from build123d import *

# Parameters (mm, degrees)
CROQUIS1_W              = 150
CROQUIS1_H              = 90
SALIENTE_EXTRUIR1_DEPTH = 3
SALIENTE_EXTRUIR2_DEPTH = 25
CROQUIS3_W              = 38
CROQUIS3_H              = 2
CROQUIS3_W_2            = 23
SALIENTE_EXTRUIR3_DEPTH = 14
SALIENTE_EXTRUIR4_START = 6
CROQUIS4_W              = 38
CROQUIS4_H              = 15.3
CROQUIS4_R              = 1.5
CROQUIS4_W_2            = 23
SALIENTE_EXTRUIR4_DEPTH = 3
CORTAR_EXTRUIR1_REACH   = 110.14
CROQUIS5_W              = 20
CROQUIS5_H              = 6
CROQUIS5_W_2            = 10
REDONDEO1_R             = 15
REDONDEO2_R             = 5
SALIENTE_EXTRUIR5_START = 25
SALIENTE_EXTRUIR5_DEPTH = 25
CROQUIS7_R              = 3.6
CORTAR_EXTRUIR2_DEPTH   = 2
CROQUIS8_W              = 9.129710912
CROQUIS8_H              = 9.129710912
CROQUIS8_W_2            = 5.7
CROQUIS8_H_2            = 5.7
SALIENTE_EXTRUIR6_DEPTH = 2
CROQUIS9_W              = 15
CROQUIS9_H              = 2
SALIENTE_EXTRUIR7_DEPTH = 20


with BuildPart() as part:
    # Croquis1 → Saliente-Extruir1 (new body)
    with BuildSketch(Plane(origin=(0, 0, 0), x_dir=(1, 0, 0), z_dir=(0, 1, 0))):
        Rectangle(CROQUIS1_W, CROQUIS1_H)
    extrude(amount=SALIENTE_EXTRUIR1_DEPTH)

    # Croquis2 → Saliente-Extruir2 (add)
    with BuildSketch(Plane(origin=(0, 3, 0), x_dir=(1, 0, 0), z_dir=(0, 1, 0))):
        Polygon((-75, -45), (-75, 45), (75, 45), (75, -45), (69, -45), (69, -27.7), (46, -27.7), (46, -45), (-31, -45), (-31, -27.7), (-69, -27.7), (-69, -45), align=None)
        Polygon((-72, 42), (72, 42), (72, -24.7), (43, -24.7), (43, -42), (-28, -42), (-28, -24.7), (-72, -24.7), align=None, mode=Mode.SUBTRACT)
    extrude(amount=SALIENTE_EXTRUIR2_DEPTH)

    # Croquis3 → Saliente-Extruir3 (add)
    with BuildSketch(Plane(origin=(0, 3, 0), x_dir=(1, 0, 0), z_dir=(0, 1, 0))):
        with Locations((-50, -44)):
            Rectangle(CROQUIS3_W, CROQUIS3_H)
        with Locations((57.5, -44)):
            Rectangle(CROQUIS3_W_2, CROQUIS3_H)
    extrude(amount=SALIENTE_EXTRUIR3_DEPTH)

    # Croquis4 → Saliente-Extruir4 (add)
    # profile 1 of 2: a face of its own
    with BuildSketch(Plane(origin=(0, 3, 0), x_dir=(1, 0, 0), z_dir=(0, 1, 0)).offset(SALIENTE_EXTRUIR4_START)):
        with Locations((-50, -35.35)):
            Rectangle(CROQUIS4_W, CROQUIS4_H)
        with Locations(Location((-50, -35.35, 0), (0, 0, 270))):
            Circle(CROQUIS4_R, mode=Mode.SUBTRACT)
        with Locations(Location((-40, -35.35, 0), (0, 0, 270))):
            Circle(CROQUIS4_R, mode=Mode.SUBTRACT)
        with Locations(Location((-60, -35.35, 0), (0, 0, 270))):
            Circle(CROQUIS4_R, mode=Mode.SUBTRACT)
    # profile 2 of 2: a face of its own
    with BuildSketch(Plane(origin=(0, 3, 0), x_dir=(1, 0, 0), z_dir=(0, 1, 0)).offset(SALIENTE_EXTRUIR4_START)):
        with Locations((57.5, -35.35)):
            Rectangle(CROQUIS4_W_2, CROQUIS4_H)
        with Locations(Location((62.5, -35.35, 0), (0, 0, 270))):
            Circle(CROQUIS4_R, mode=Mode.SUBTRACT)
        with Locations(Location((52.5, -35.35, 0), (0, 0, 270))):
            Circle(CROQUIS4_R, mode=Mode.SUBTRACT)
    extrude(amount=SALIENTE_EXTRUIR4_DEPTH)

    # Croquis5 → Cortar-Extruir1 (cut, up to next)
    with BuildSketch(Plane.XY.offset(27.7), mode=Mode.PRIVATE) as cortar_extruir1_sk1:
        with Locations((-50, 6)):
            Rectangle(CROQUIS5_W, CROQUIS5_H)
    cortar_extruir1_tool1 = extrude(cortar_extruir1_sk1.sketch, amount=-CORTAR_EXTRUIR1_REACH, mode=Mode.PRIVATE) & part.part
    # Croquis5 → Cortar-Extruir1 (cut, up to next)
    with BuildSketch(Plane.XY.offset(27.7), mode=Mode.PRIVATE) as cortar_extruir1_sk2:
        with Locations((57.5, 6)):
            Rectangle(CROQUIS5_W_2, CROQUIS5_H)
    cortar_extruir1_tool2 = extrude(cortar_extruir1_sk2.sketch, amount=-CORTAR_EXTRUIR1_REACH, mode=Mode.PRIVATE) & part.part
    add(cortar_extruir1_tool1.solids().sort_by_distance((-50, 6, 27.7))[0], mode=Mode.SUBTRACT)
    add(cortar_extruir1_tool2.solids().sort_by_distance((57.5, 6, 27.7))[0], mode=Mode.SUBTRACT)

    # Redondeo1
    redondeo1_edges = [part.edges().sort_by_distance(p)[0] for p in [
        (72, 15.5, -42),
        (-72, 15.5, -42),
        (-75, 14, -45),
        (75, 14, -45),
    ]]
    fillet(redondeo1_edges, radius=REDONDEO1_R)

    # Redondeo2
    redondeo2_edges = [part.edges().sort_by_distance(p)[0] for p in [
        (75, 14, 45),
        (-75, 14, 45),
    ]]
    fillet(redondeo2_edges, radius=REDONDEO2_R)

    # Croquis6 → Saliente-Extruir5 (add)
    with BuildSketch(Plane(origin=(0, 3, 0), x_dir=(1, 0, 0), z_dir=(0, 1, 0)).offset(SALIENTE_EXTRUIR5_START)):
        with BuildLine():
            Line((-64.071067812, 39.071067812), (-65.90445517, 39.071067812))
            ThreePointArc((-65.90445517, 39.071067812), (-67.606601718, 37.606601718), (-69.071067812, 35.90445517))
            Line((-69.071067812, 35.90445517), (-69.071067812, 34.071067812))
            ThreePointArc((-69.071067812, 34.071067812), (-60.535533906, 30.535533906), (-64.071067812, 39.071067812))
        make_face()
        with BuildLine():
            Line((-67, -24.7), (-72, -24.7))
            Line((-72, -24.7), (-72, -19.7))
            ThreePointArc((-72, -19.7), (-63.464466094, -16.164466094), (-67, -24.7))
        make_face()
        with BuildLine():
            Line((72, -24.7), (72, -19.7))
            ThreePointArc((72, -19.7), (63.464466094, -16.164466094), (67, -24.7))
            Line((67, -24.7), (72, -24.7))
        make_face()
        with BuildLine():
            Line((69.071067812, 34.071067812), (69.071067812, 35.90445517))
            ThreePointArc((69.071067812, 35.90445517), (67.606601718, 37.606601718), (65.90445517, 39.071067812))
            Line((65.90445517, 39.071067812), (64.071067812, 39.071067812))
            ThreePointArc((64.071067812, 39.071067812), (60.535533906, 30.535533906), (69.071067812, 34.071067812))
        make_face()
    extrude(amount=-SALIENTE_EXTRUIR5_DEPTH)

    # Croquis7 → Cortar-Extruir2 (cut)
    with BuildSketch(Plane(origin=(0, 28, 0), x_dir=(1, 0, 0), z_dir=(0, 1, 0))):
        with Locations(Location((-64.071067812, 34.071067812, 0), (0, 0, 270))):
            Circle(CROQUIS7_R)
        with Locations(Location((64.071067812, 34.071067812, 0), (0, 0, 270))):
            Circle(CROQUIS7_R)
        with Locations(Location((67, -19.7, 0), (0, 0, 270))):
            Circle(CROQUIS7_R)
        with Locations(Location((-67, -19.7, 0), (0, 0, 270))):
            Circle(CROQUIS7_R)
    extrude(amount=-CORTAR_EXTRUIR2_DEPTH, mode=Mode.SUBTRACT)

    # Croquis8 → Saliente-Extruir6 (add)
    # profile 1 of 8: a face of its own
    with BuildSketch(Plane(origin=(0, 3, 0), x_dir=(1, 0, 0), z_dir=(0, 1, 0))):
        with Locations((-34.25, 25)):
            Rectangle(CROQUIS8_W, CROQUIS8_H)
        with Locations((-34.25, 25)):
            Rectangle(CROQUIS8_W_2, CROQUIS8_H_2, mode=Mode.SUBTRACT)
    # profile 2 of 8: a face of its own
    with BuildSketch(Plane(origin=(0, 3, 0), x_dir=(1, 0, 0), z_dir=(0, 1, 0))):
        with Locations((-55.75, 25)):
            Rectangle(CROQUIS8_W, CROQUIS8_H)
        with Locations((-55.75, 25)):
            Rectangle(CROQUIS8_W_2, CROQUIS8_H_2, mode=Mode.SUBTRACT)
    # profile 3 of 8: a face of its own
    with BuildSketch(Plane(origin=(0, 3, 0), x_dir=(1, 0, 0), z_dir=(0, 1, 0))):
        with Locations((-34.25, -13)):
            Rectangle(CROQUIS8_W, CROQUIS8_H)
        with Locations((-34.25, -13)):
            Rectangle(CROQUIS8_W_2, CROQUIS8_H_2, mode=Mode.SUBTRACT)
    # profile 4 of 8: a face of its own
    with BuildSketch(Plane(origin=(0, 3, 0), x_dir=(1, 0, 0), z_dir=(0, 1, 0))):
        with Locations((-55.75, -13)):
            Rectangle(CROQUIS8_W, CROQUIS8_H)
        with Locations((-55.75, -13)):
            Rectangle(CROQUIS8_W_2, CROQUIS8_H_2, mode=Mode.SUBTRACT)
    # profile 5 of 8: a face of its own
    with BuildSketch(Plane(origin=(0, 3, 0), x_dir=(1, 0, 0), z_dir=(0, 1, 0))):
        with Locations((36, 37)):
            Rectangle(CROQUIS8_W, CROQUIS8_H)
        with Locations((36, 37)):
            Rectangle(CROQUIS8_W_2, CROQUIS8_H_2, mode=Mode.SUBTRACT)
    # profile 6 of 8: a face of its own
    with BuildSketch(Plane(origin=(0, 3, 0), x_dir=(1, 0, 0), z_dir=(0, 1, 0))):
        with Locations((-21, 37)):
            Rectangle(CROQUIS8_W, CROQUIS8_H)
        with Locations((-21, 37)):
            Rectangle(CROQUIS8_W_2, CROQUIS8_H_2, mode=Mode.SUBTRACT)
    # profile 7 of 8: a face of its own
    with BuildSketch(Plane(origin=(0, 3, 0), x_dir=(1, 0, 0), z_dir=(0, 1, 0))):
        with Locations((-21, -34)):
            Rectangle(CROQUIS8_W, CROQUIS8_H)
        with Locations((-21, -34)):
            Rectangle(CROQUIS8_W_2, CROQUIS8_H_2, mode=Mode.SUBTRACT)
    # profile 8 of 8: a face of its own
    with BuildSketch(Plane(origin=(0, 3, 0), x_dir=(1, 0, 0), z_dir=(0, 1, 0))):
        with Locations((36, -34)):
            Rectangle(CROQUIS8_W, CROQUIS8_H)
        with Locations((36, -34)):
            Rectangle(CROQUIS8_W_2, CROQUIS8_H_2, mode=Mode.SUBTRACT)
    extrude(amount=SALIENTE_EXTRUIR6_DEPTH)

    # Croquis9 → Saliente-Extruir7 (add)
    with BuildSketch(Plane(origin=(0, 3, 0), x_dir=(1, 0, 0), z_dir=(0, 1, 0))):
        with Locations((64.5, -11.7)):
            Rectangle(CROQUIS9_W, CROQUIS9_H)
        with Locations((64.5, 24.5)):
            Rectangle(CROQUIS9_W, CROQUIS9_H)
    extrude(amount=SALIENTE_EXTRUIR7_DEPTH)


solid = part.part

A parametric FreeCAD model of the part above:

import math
import FreeCAD as App
import Part
import Sketcher

V = App.Vector


def edges_at(feature, points):
    """Names of the edges that pass closest to the given points."""
    edges = feature.Shape.Edges
    near = lambda p: min(range(len(edges)), key=lambda i: edges[i].distToShape(Part.Vertex(*p))[0])
    return sorted({f"Edge{near(p) + 1}" for p in points})


def add_polygon(sketch, points):
    """Adds a closed chain of lines whose ends are joined by coincident constraints."""
    first, n = sketch.GeometryCount, len(points)
    for a, b in zip(points, points[1:] + points[:1]):
        sketch.addGeometry(Part.LineSegment(App.Vector(*a, 0), App.Vector(*b, 0)), False)
    for i in range(n):
        sketch.addConstraint(Sketcher.Constraint("Coincident", first + i, 2, first + (i + 1) % n, 1))

doc = App.newDocument("Part")
body = doc.addObject("PartDesign::Body", "Body")

sketch1 = doc.addObject("Sketcher::SketchObject", "Sketch")
body.addObject(sketch1)
sketch1.AttachmentSupport = (doc.XZ_Plane, [""])
sketch1.MapMode = "FlatFace"
add_polygon(sketch1, [(-75, -45), (-75, 45), (75, 45), (75, -45)])
sketch1.addConstraint(Sketcher.Constraint("Vertical", 0))
sketch1.addConstraint(Sketcher.Constraint("Horizontal", 1))
sketch1.addConstraint(Sketcher.Constraint("Vertical", 2))
sketch1.addConstraint(Sketcher.Constraint("Horizontal", 3))
sketch1.addConstraint(Sketcher.Constraint("Symmetric", 0, 2, 2, 2, -1, 1))
sketch1.addConstraint(Sketcher.Constraint("DistanceX", 1, 1, 1, 2, 150.0))
sketch1.addConstraint(Sketcher.Constraint("DistanceY", 0, 1, 0, 2, 90.0))
pad1 = doc.addObject("PartDesign::Pad", "Pad")
body.addObject(pad1)
pad1.Profile = sketch1
pad1.Length = 3
pad1.Reversed = True

sketch2 = doc.addObject("Sketcher::SketchObject", "Sketch001")
body.addObject(sketch2)
sketch2.AttachmentSupport = (doc.XZ_Plane, [""])
sketch2.MapMode = "FlatFace"
sketch2.AttachmentOffset = App.Placement(V(0, 0, -3), App.Rotation())
add_polygon(sketch2, [(-75, -45), (-75, 45), (-69, 45), (-69, 27.7), (-31, 27.7), (-31, 45), (46, 45), (46, 27.7), (69, 27.7), (69, 45), (75, 45), (75, -45)])
add_polygon(sketch2, [(-72, -42), (72, -42), (72, 24.7), (43, 24.7), (43, 42), (-28, 42), (-28, 24.7), (-72, 24.7)])
sketch2.addConstraint(Sketcher.Constraint("Vertical", 0))
sketch2.addConstraint(Sketcher.Constraint("Horizontal", 1))
sketch2.addConstraint(Sketcher.Constraint("Vertical", 2))
sketch2.addConstraint(Sketcher.Constraint("Horizontal", 3))
sketch2.addConstraint(Sketcher.Constraint("Vertical", 4))
sketch2.addConstraint(Sketcher.Constraint("Horizontal", 5))
sketch2.addConstraint(Sketcher.Constraint("Vertical", 6))
sketch2.addConstraint(Sketcher.Constraint("Horizontal", 7))
sketch2.addConstraint(Sketcher.Constraint("Vertical", 8))
sketch2.addConstraint(Sketcher.Constraint("Horizontal", 9))
sketch2.addConstraint(Sketcher.Constraint("Vertical", 10))
sketch2.addConstraint(Sketcher.Constraint("Horizontal", 11))
sketch2.addConstraint(Sketcher.Constraint("Horizontal", 12))
sketch2.addConstraint(Sketcher.Constraint("Vertical", 13))
sketch2.addConstraint(Sketcher.Constraint("Horizontal", 14))
sketch2.addConstraint(Sketcher.Constraint("Vertical", 15))
sketch2.addConstraint(Sketcher.Constraint("Horizontal", 16))
sketch2.addConstraint(Sketcher.Constraint("Vertical", 17))
sketch2.addConstraint(Sketcher.Constraint("Horizontal", 18))
sketch2.addConstraint(Sketcher.Constraint("Vertical", 19))
sketch2.addConstraint(Sketcher.Constraint("Symmetric", 0, 2, 10, 2, -1, 1))
sketch2.addConstraint(Sketcher.Constraint("Symmetric", 2, 2, 7, 2, -2))
sketch2.addConstraint(Sketcher.Constraint("Symmetric", 13, 2, 18, 2, -2))
sketch2.addConstraint(Sketcher.Constraint("Horizontal", 1, 2, 4, 2))
sketch2.addConstraint(Sketcher.Constraint("Horizontal", 5, 2, 8, 2))
sketch2.addConstraint(Sketcher.Constraint("Equal", 8, 15))
sketch2.addConstraint(Sketcher.Constraint("DistanceX", 1, 1, 1, 2, 6.0))
sketch2.addConstraint(Sketcher.Constraint("DistanceX", 3, 1, 3, 2, 38.0))
sketch2.addConstraint(Sketcher.Constraint("DistanceX", 5, 1, 5, 2, 77.0))
sketch2.addConstraint(Sketcher.Constraint("DistanceX", 7, 1, 7, 2, 23.0))
sketch2.addConstraint(Sketcher.Constraint("DistanceX", 12, 1, 12, 2, 144.0))
sketch2.addConstraint(Sketcher.Constraint("DistanceX", 14, 2, 14, 1, 29.0))
sketch2.addConstraint(Sketcher.Constraint("DistanceX", 16, 2, 16, 1, 71.0))
sketch2.addConstraint(Sketcher.Constraint("DistanceY", 0, 1, 0, 2, 90.0))
sketch2.addConstraint(Sketcher.Constraint("DistanceY", 2, 2, 2, 1, 17.3))
sketch2.addConstraint(Sketcher.Constraint("DistanceY", 13, 1, 13, 2, 66.7))
sketch2.addConstraint(Sketcher.Constraint("DistanceY", 12, 2, -1, 1, 42.0))
pad2 = doc.addObject("PartDesign::Pad", "Pad001")
body.addObject(pad2)
pad2.Profile = sketch2
pad2.Length = 25
pad2.Reversed = True

sketch3 = doc.addObject("Sketcher::SketchObject", "Sketch002")
body.addObject(sketch3)
sketch3.AttachmentSupport = (doc.XZ_Plane, [""])
sketch3.MapMode = "FlatFace"
sketch3.AttachmentOffset = App.Placement(V(0, 0, -3), App.Rotation())
add_polygon(sketch3, [(-69, 43), (-69, 45), (-31, 45), (-31, 43)])
add_polygon(sketch3, [(46, 43), (46, 45), (69, 45), (69, 43)])
sketch3.addConstraint(Sketcher.Constraint("Vertical", 0))
sketch3.addConstraint(Sketcher.Constraint("Horizontal", 1))
sketch3.addConstraint(Sketcher.Constraint("Vertical", 2))
sketch3.addConstraint(Sketcher.Constraint("Horizontal", 3))
sketch3.addConstraint(Sketcher.Constraint("Vertical", 4))
sketch3.addConstraint(Sketcher.Constraint("Horizontal", 5))
sketch3.addConstraint(Sketcher.Constraint("Vertical", 6))
sketch3.addConstraint(Sketcher.Constraint("Horizontal", 7))
sketch3.addConstraint(Sketcher.Constraint("Symmetric", 0, 2, 5, 2, -2))
sketch3.addConstraint(Sketcher.Constraint("Horizontal", 3, 2, 6, 2))
sketch3.addConstraint(Sketcher.Constraint("DistanceX", 1, 1, 1, 2, 38.0))
sketch3.addConstraint(Sketcher.Constraint("DistanceX", 5, 1, 5, 2, 23.0))
sketch3.addConstraint(Sketcher.Constraint("DistanceY", 0, 1, 0, 2, 2.0))
sketch3.addConstraint(Sketcher.Constraint("DistanceX", 0, 2, -1, 1, 69.0))
sketch3.addConstraint(Sketcher.Constraint("DistanceY", -1, 1, 0, 2, 45.0))
pad3 = doc.addObject("PartDesign::Pad", "Pad002")
body.addObject(pad3)
pad3.Profile = sketch3
pad3.Length = 14
pad3.Reversed = True

sketch4 = doc.addObject("Sketcher::SketchObject", "Sketch003")
body.addObject(sketch4)
sketch4.AttachmentSupport = (doc.XZ_Plane, [""])
sketch4.MapMode = "FlatFace"
sketch4.AttachmentOffset = App.Placement(V(0, 0, -9), App.Rotation())
add_polygon(sketch4, [(-69, 27.7), (-69, 43), (-31, 43), (-31, 27.7)])
sketch4.addGeometry(Part.Circle(V(-60, 35.35, 0), V(0, 0, 1), 1.5), False)
sketch4.addGeometry(Part.Circle(V(-50, 35.35, 0), V(0, 0, 1), 1.5), False)
sketch4.addGeometry(Part.Circle(V(-40, 35.35, 0), V(0, 0, 1), 1.5), False)
add_polygon(sketch4, [(46, 27.7), (46, 43), (69, 43), (69, 27.7)])
sketch4.addGeometry(Part.Circle(V(52.5, 35.35, 0), V(0, 0, 1), 1.5), False)
sketch4.addGeometry(Part.Circle(V(62.5, 35.35, 0), V(0, 0, 1), 1.5), False)
sketch4.addConstraint(Sketcher.Constraint("Vertical", 0))
sketch4.addConstraint(Sketcher.Constraint("Horizontal", 1))
sketch4.addConstraint(Sketcher.Constraint("Vertical", 2))
sketch4.addConstraint(Sketcher.Constraint("Horizontal", 3))
sketch4.addConstraint(Sketcher.Constraint("Vertical", 7))
sketch4.addConstraint(Sketcher.Constraint("Horizontal", 8))
sketch4.addConstraint(Sketcher.Constraint("Vertical", 9))
sketch4.addConstraint(Sketcher.Constraint("Horizontal", 10))
sketch4.addConstraint(Sketcher.Constraint("Equal", 4, 5))
sketch4.addConstraint(Sketcher.Constraint("Equal", 5, 6))
sketch4.addConstraint(Sketcher.Constraint("Equal", 6, 11))
sketch4.addConstraint(Sketcher.Constraint("Equal", 11, 12))
sketch4.addConstraint(Sketcher.Constraint("Symmetric", 0, 2, 8, 2, -2))
sketch4.addConstraint(Sketcher.Constraint("Horizontal", 4, 3, 5, 3))
sketch4.addConstraint(Sketcher.Constraint("Horizontal", 5, 3, 6, 3))
sketch4.addConstraint(Sketcher.Constraint("Horizontal", 6, 3, 11, 3))
sketch4.addConstraint(Sketcher.Constraint("Horizontal", 11, 3, 12, 3))
sketch4.addConstraint(Sketcher.Constraint("Horizontal", 3, 2, 9, 2))
sketch4.addConstraint(Sketcher.Constraint("Diameter", 4, 3.0))
sketch4.addConstraint(Sketcher.Constraint("DistanceX", 1, 1, 1, 2, 38.0))
sketch4.addConstraint(Sketcher.Constraint("DistanceX", 8, 1, 8, 2, 23.0))
sketch4.addConstraint(Sketcher.Constraint("DistanceY", 0, 1, 0, 2, 15.3))
sketch4.addConstraint(Sketcher.Constraint("DistanceX", 4, 3, -1, 1, 60.0))
sketch4.addConstraint(Sketcher.Constraint("DistanceX", 5, 3, -1, 1, 50.0))
sketch4.addConstraint(Sketcher.Constraint("DistanceX", 6, 3, -1, 1, 40.0))
sketch4.addConstraint(Sketcher.Constraint("DistanceX", 0, 2, -1, 1, 69.0))
sketch4.addConstraint(Sketcher.Constraint("DistanceY", -1, 1, 0, 2, 43.0))
sketch4.addConstraint(Sketcher.Constraint("DistanceX", 11, 3, 12, 3, 10.0))
sketch4.addConstraint(Sketcher.Constraint("DistanceX", -1, 1, 11, 3, 52.5))
sketch4.addConstraint(Sketcher.Constraint("DistanceY", -1, 1, 4, 3, 35.35))
pad4 = doc.addObject("PartDesign::Pad", "Pad003")
body.addObject(pad4)
pad4.Profile = sketch4
pad4.Length = 3
pad4.Reversed = True

sketch5 = doc.addObject("Sketcher::SketchObject", "Sketch004")
body.addObject(sketch5)
sketch5.AttachmentSupport = (doc.XY_Plane, [""])
sketch5.MapMode = "FlatFace"
sketch5.AttachmentOffset = App.Placement(V(0, 0, 27.7), App.Rotation())
add_polygon(sketch5, [(-60, 9), (-60, 3), (-40, 3), (-40, 9)])
sketch5.addConstraint(Sketcher.Constraint("Vertical", 0))
sketch5.addConstraint(Sketcher.Constraint("Horizontal", 1))
sketch5.addConstraint(Sketcher.Constraint("Vertical", 2))
sketch5.addConstraint(Sketcher.Constraint("Horizontal", 3))
sketch5.addConstraint(Sketcher.Constraint("DistanceX", 1, 1, 1, 2, 20.0))
sketch5.addConstraint(Sketcher.Constraint("DistanceY", 0, 2, 0, 1, 6.0))
sketch5.addConstraint(Sketcher.Constraint("DistanceX", 0, 2, -1, 1, 60.0))
sketch5.addConstraint(Sketcher.Constraint("DistanceY", -1, 1, 0, 2, 3.0))
pocket1 = doc.addObject("PartDesign::Pocket", "Pocket")
body.addObject(pocket1)
pocket1.Profile = sketch5
pocket1.Type = "UpToFirst"

sketch6 = doc.addObject("Sketcher::SketchObject", "Sketch005")
body.addObject(sketch6)
sketch6.AttachmentSupport = (doc.XY_Plane, [""])
sketch6.MapMode = "FlatFace"
sketch6.AttachmentOffset = App.Placement(V(0, 0, 27.7), App.Rotation())
add_polygon(sketch6, [(52.5, 9), (52.5, 3), (62.5, 3), (62.5, 9)])
sketch6.addConstraint(Sketcher.Constraint("Vertical", 0))
sketch6.addConstraint(Sketcher.Constraint("Horizontal", 1))
sketch6.addConstraint(Sketcher.Constraint("Vertical", 2))
sketch6.addConstraint(Sketcher.Constraint("Horizontal", 3))
sketch6.addConstraint(Sketcher.Constraint("DistanceX", 1, 1, 1, 2, 10.0))
sketch6.addConstraint(Sketcher.Constraint("DistanceY", 0, 2, 0, 1, 6.0))
sketch6.addConstraint(Sketcher.Constraint("DistanceY", -1, 1, 0, 2, 3.0))
sketch6.addConstraint(Sketcher.Constraint("DistanceX", -1, 1, 0, 2, 52.5))
pocket2 = doc.addObject("PartDesign::Pocket", "Pocket001")
body.addObject(pocket2)
pocket2.Profile = sketch6
pocket2.Type = "UpToFirst"
doc.recompute()

fillet = doc.addObject("PartDesign::Fillet", "Fillet")
body.addObject(fillet)
fillet.Base = (pocket2, edges_at(pocket2, [
    (72, 15.5, -42),
    (-72, 15.5, -42),
    (-75, 14, -45),
    (75, 14, -45),
]))
fillet.Radius = 15
doc.recompute()

fillet2 = doc.addObject("PartDesign::Fillet", "Fillet001")
body.addObject(fillet2)
fillet2.Base = (fillet, edges_at(fillet, [(75, 14, 45), (-75, 14, 45)]))
fillet2.Radius = 5

sketch7 = doc.addObject("Sketcher::SketchObject", "Sketch006")
body.addObject(sketch7)
sketch7.AttachmentSupport = (doc.XZ_Plane, [""])
sketch7.MapMode = "FlatFace"
sketch7.AttachmentOffset = App.Placement(V(0, 0, -28), App.Rotation())
sketch7.addGeometry(Part.LineSegment(V(-64.071068, -39.071068, 0), V(-65.904455, -39.071068, 0)), False)
sketch7.addGeometry(Part.ArcOfCircle(Part.Circle(V(-57, -27, 0), V(0, 0, 1), 15), math.radians(-143.584946), math.radians(-126.415054)), False)
sketch7.addGeometry(Part.LineSegment(V(-69.071068, -35.904455, 0), V(-69.071068, -34.071068, 0)), False)
sketch7.addGeometry(Part.ArcOfCircle(Part.Circle(V(-64.071068, -34.071068, 0), V(0, 0, 1), 5), math.radians(-90), math.radians(180)), False)
sketch7.addGeometry(Part.LineSegment(V(-72, 24.7, 0), V(-67, 24.7, 0)), False)
sketch7.addGeometry(Part.ArcOfCircle(Part.Circle(V(-67, 19.7, 0), V(0, 0, 1), 5), math.radians(180), math.radians(450)), False)
sketch7.addGeometry(Part.LineSegment(V(-72, 19.7, 0), V(-72, 24.7, 0)), False)
sketch7.addGeometry(Part.LineSegment(V(72, 24.7, 0), V(72, 19.7, 0)), False)
sketch7.addGeometry(Part.ArcOfCircle(Part.Circle(V(67, 19.7, 0), V(0, 0, 1), 5), math.radians(90), math.radians(360)), False)
sketch7.addGeometry(Part.LineSegment(V(67, 24.7, 0), V(72, 24.7, 0)), False)
sketch7.addGeometry(Part.LineSegment(V(69.071068, -34.071068, 0), V(69.071068, -35.904455, 0)), False)
sketch7.addGeometry(Part.ArcOfCircle(Part.Circle(V(57, -27, 0), V(0, 0, 1), 15), math.radians(-53.584946), math.radians(-36.415054)), False)
sketch7.addGeometry(Part.LineSegment(V(65.904455, -39.071068, 0), V(64.071068, -39.071068, 0)), False)
sketch7.addGeometry(Part.ArcOfCircle(Part.Circle(V(64.071068, -34.071068, 0), V(0, 0, 1), 5), math.radians(0), math.radians(270)), False)
sketch7.addConstraint(Sketcher.Constraint("Coincident", 0, 2, 1, 2))
sketch7.addConstraint(Sketcher.Constraint("Coincident", 1, 1, 2, 1))
sketch7.addConstraint(Sketcher.Constraint("Tangent", 2, 2, 3, 2))
sketch7.addConstraint(Sketcher.Constraint("Tangent", 3, 1, 0, 1))
sketch7.addConstraint(Sketcher.Constraint("Tangent", 4, 2, 5, 2))
sketch7.addConstraint(Sketcher.Constraint("Tangent", 5, 1, 6, 1))
sketch7.addConstraint(Sketcher.Constraint("Coincident", 6, 2, 4, 1))
sketch7.addConstraint(Sketcher.Constraint("Tangent", 7, 2, 8, 2))
sketch7.addConstraint(Sketcher.Constraint("Tangent", 8, 1, 9, 1))
sketch7.addConstraint(Sketcher.Constraint("Coincident", 9, 2, 7, 1))
sketch7.addConstraint(Sketcher.Constraint("Coincident", 10, 2, 11, 2))
sketch7.addConstraint(Sketcher.Constraint("Coincident", 11, 1, 12, 1))
sketch7.addConstraint(Sketcher.Constraint("Tangent", 12, 2, 13, 2))
sketch7.addConstraint(Sketcher.Constraint("Tangent", 13, 1, 10, 1))
sketch7.addConstraint(Sketcher.Constraint("Horizontal", 0))
sketch7.addConstraint(Sketcher.Constraint("Vertical", 2))
sketch7.addConstraint(Sketcher.Constraint("Horizontal", 4))
sketch7.addConstraint(Sketcher.Constraint("Vertical", 6))
sketch7.addConstraint(Sketcher.Constraint("Vertical", 7))
sketch7.addConstraint(Sketcher.Constraint("Horizontal", 9))
sketch7.addConstraint(Sketcher.Constraint("Vertical", 10))
sketch7.addConstraint(Sketcher.Constraint("Horizontal", 12))
sketch7.addConstraint(Sketcher.Constraint("Equal", 3, 5))
sketch7.addConstraint(Sketcher.Constraint("Equal", 5, 8))
sketch7.addConstraint(Sketcher.Constraint("Equal", 1, 11))
sketch7.addConstraint(Sketcher.Constraint("Equal", 8, 13))
sketch7.addConstraint(Sketcher.Constraint("Symmetric", 5, 3, 8, 3, -2))
sketch7.addConstraint(Sketcher.Constraint("Symmetric", 1, 3, 11, 3, -2))
sketch7.addConstraint(Sketcher.Constraint("Symmetric", 3, 3, 13, 3, -2))
sketch7.addConstraint(Sketcher.Constraint("Equal", 12, 2))
sketch7.addConstraint(Sketcher.Constraint("Radius", 1, 15.0))
sketch7.addConstraint(Sketcher.Constraint("Radius", 3, 5.0))
sketch7.addConstraint(Sketcher.Constraint("DistanceX", 1, 3, -1, 1, 57.0))
sketch7.addConstraint(Sketcher.Constraint("DistanceY", 1, 3, -1, 1, 27.0))
sketch7.addConstraint(Sketcher.Constraint("DistanceX", 5, 3, -1, 1, 67.0))
sketch7.addConstraint(Sketcher.Constraint("DistanceY", -1, 1, 5, 3, 19.7))
sketch7.addConstraint(Sketcher.Constraint("DistanceX", 0, 2, 0, 1, 1.833387))
pad5 = doc.addObject("PartDesign::Pad", "Pad004")
body.addObject(pad5)
pad5.Profile = sketch7
pad5.Length = 25

sketch8 = doc.addObject("Sketcher::SketchObject", "Sketch007")
body.addObject(sketch8)
sketch8.AttachmentSupport = (doc.XZ_Plane, [""])
sketch8.MapMode = "FlatFace"
sketch8.AttachmentOffset = App.Placement(V(0, 0, -28), App.Rotation())
sketch8.addGeometry(Part.Circle(V(-64.071068, -34.071068, 0), V(0, 0, 1), 3.6), False)
sketch8.addGeometry(Part.Circle(V(64.071068, -34.071068, 0), V(0, 0, 1), 3.6), False)
sketch8.addGeometry(Part.Circle(V(67, 19.7, 0), V(0, 0, 1), 3.6), False)
sketch8.addGeometry(Part.Circle(V(-67, 19.7, 0), V(0, 0, 1), 3.6), False)
sketch8.addConstraint(Sketcher.Constraint("Equal", 0, 1))
sketch8.addConstraint(Sketcher.Constraint("Equal", 1, 2))
sketch8.addConstraint(Sketcher.Constraint("Equal", 2, 3))
sketch8.addConstraint(Sketcher.Constraint("Symmetric", 0, 3, 1, 3, -2))
sketch8.addConstraint(Sketcher.Constraint("Symmetric", 2, 3, 3, 3, -2))
sketch8.addConstraint(Sketcher.Constraint("Diameter", 0, 7.2))
sketch8.addConstraint(Sketcher.Constraint("DistanceX", -1, 1, 2, 3, 67.0))
sketch8.addConstraint(Sketcher.Constraint("DistanceY", -1, 1, 2, 3, 19.7))
sketch8.addConstraint(Sketcher.Constraint("DistanceX", 0, 3, -1, 1, 64.071068))
sketch8.addConstraint(Sketcher.Constraint("DistanceY", 0, 3, -1, 1, 34.071068))
pocket3 = doc.addObject("PartDesign::Pocket", "Pocket002")
body.addObject(pocket3)
pocket3.Profile = sketch8
pocket3.Length = 2
pocket3.Reversed = True

sketch9 = doc.addObject("Sketcher::SketchObject", "Sketch008")
body.addObject(sketch9)
sketch9.AttachmentSupport = (doc.XZ_Plane, [""])
sketch9.MapMode = "FlatFace"
sketch9.AttachmentOffset = App.Placement(V(0, 0, -3), App.Rotation())
add_polygon(sketch9, [(-38.814855, -29.564855), (-38.814855, -20.435145), (-29.685145, -20.435145), (-29.685145, -29.564855)])
add_polygon(sketch9, [(-31.4, -22.15), (-37.1, -22.15), (-37.1, -27.85), (-31.4, -27.85)])
add_polygon(sketch9, [(-60.314855, -29.564855), (-60.314855, -20.435145), (-51.185145, -20.435145), (-51.185145, -29.564855)])
add_polygon(sketch9, [(-52.9, -22.15), (-58.6, -22.15), (-58.6, -27.85), (-52.9, -27.85)])
add_polygon(sketch9, [(-38.814855, 8.435145), (-38.814855, 17.564855), (-29.685145, 17.564855), (-29.685145, 8.435145)])
add_polygon(sketch9, [(-31.4, 15.85), (-37.1, 15.85), (-37.1, 10.15), (-31.4, 10.15)])
add_polygon(sketch9, [(-60.314855, 8.435145), (-60.314855, 17.564855), (-51.185145, 17.564855), (-51.185145, 8.435145)])
add_polygon(sketch9, [(-52.9, 15.85), (-58.6, 15.85), (-58.6, 10.15), (-52.9, 10.15)])
add_polygon(sketch9, [(31.435145, -41.564855), (31.435145, -32.435145), (40.564855, -32.435145), (40.564855, -41.564855)])
add_polygon(sketch9, [(38.85, -34.15), (33.15, -34.15), (33.15, -39.85), (38.85, -39.85)])
add_polygon(sketch9, [(-25.564855, -41.564855), (-25.564855, -32.435145), (-16.435145, -32.435145), (-16.435145, -41.564855)])
add_polygon(sketch9, [(-18.15, -34.15), (-23.85, -34.15), (-23.85, -39.85), (-18.15, -39.85)])
add_polygon(sketch9, [(-25.564855, 29.435145), (-25.564855, 38.564855), (-16.435145, 38.564855), (-16.435145, 29.435145)])
add_polygon(sketch9, [(-18.15, 36.85), (-23.85, 36.85), (-23.85, 31.15), (-18.15, 31.15)])
add_polygon(sketch9, [(31.435145, 29.435145), (31.435145, 38.564855), (40.564855, 38.564855), (40.564855, 29.435145)])
add_polygon(sketch9, [(38.85, 36.85), (33.15, 36.85), (33.15, 31.15), (38.85, 31.15)])
sketch9.addConstraint(Sketcher.Constraint("Vertical", 0))
sketch9.addConstraint(Sketcher.Constraint("Horizontal", 1))
sketch9.addConstraint(Sketcher.Constraint("Vertical", 2))
sketch9.addConstraint(Sketcher.Constraint("Horizontal", 3))
sketch9.addConstraint(Sketcher.Constraint("Horizontal", 4))
sketch9.addConstraint(Sketcher.Constraint("Vertical", 5))
sketch9.addConstraint(Sketcher.Constraint("Horizontal", 6))
sketch9.addConstraint(Sketcher.Constraint("Vertical", 7))
sketch9.addConstraint(Sketcher.Constraint("Vertical", 8))
sketch9.addConstraint(Sketcher.Constraint("Horizontal", 9))
sketch9.addConstraint(Sketcher.Constraint("Vertical", 10))
sketch9.addConstraint(Sketcher.Constraint("Horizontal", 11))
sketch9.addConstraint(Sketcher.Constraint("Horizontal", 12))
sketch9.addConstraint(Sketcher.Constraint("Vertical", 13))
sketch9.addConstraint(Sketcher.Constraint("Horizontal", 14))
sketch9.addConstraint(Sketcher.Constraint("Vertical", 15))
sketch9.addConstraint(Sketcher.Constraint("Vertical", 16))
sketch9.addConstraint(Sketcher.Constraint("Horizontal", 17))
sketch9.addConstraint(Sketcher.Constraint("Vertical", 18))
sketch9.addConstraint(Sketcher.Constraint("Horizontal", 19))
sketch9.addConstraint(Sketcher.Constraint("Horizontal", 20))
sketch9.addConstraint(Sketcher.Constraint("Vertical", 21))
sketch9.addConstraint(Sketcher.Constraint("Horizontal", 22))
sketch9.addConstraint(Sketcher.Constraint("Vertical", 23))
sketch9.addConstraint(Sketcher.Constraint("Vertical", 24))
sketch9.addConstraint(Sketcher.Constraint("Horizontal", 25))
sketch9.addConstraint(Sketcher.Constraint("Vertical", 26))
sketch9.addConstraint(Sketcher.Constraint("Horizontal", 27))
sketch9.addConstraint(Sketcher.Constraint("Horizontal", 28))
sketch9.addConstraint(Sketcher.Constraint("Vertical", 29))
sketch9.addConstraint(Sketcher.Constraint("Horizontal", 30))
sketch9.addConstraint(Sketcher.Constraint("Vertical", 31))
sketch9.addConstraint(Sketcher.Constraint("Vertical", 32))
sketch9.addConstraint(Sketcher.Constraint("Horizontal", 33))
sketch9.addConstraint(Sketcher.Constraint("Vertical", 34))
sketch9.addConstraint(Sketcher.Constraint("Horizontal", 35))
sketch9.addConstraint(Sketcher.Constraint("Horizontal", 36))
sketch9.addConstraint(Sketcher.Constraint("Vertical", 37))
sketch9.addConstraint(Sketcher.Constraint("Horizontal", 38))
sketch9.addConstraint(Sketcher.Constraint("Vertical", 39))
sketch9.addConstraint(Sketcher.Constraint("Vertical", 40))
sketch9.addConstraint(Sketcher.Constraint("Horizontal", 41))
sketch9.addConstraint(Sketcher.Constraint("Vertical", 42))
sketch9.addConstraint(Sketcher.Constraint("Horizontal", 43))
sketch9.addConstraint(Sketcher.Constraint("Horizontal", 44))
sketch9.addConstraint(Sketcher.Constraint("Vertical", 45))
sketch9.addConstraint(Sketcher.Constraint("Horizontal", 46))
sketch9.addConstraint(Sketcher.Constraint("Vertical", 47))
sketch9.addConstraint(Sketcher.Constraint("Vertical", 48))
sketch9.addConstraint(Sketcher.Constraint("Horizontal", 49))
sketch9.addConstraint(Sketcher.Constraint("Vertical", 50))
sketch9.addConstraint(Sketcher.Constraint("Horizontal", 51))
sketch9.addConstraint(Sketcher.Constraint("Horizontal", 52))
sketch9.addConstraint(Sketcher.Constraint("Vertical", 53))
sketch9.addConstraint(Sketcher.Constraint("Horizontal", 54))
sketch9.addConstraint(Sketcher.Constraint("Vertical", 55))
sketch9.addConstraint(Sketcher.Constraint("Vertical", 56))
sketch9.addConstraint(Sketcher.Constraint("Horizontal", 57))
sketch9.addConstraint(Sketcher.Constraint("Vertical", 58))
sketch9.addConstraint(Sketcher.Constraint("Horizontal", 59))
sketch9.addConstraint(Sketcher.Constraint("Horizontal", 60))
sketch9.addConstraint(Sketcher.Constraint("Vertical", 61))
sketch9.addConstraint(Sketcher.Constraint("Horizontal", 62))
sketch9.addConstraint(Sketcher.Constraint("Vertical", 63))
sketch9.addConstraint(Sketcher.Constraint("Horizontal", 1, 2, 8, 2))
sketch9.addConstraint(Sketcher.Constraint("Horizontal", 3, 2, 10, 2))
sketch9.addConstraint(Sketcher.Constraint("Horizontal", 7, 2, 12, 2))
sketch9.addConstraint(Sketcher.Constraint("Horizontal", 6, 2, 13, 2))
sketch9.addConstraint(Sketcher.Constraint("Horizontal", 17, 2, 24, 2))
sketch9.addConstraint(Sketcher.Constraint("Horizontal", 19, 2, 26, 2))
sketch9.addConstraint(Sketcher.Constraint("Horizontal", 23, 2, 28, 2))
sketch9.addConstraint(Sketcher.Constraint("Horizontal", 22, 2, 29, 2))
sketch9.addConstraint(Sketcher.Constraint("Horizontal", 33, 2, 40, 2))
sketch9.addConstraint(Sketcher.Constraint("Horizontal", 35, 2, 42, 2))
sketch9.addConstraint(Sketcher.Constraint("Horizontal", 39, 2, 44, 2))
sketch9.addConstraint(Sketcher.Constraint("Horizontal", 38, 2, 45, 2))
sketch9.addConstraint(Sketcher.Constraint("Horizontal", 49, 2, 56, 2))
sketch9.addConstraint(Sketcher.Constraint("Horizontal", 51, 2, 58, 2))
sketch9.addConstraint(Sketcher.Constraint("Horizontal", 55, 2, 60, 2))
sketch9.addConstraint(Sketcher.Constraint("Horizontal", 54, 2, 61, 2))
sketch9.addConstraint(Sketcher.Constraint("Vertical", 3, 2, 16, 2))
sketch9.addConstraint(Sketcher.Constraint("Vertical", 2, 2, 17, 2))
sketch9.addConstraint(Sketcher.Constraint("Vertical", 5, 2, 20, 2))
sketch9.addConstraint(Sketcher.Constraint("Vertical", 7, 2, 22, 2))
sketch9.addConstraint(Sketcher.Constraint("Vertical", 11, 2, 24, 2))
sketch9.addConstraint(Sketcher.Constraint("Vertical", 10, 2, 25, 2))
sketch9.addConstraint(Sketcher.Constraint("Vertical", 13, 2, 28, 2))
sketch9.addConstraint(Sketcher.Constraint("Vertical", 15, 2, 30, 2))
sketch9.addConstraint(Sketcher.Constraint("Vertical", 43, 2, 48, 2))
sketch9.addConstraint(Sketcher.Constraint("Vertical", 42, 2, 49, 2))
sketch9.addConstraint(Sketcher.Constraint("Vertical", 45, 2, 52, 2))
sketch9.addConstraint(Sketcher.Constraint("Vertical", 47, 2, 54, 2))
sketch9.addConstraint(Sketcher.Constraint("Vertical", 35, 2, 56, 2))
sketch9.addConstraint(Sketcher.Constraint("Vertical", 34, 2, 57, 2))
sketch9.addConstraint(Sketcher.Constraint("Vertical", 37, 2, 60, 2))
sketch9.addConstraint(Sketcher.Constraint("Vertical", 39, 2, 62, 2))
sketch9.addConstraint(Sketcher.Constraint("Equal", 3, 9))
sketch9.addConstraint(Sketcher.Constraint("Equal", 6, 12))
sketch9.addConstraint(Sketcher.Constraint("Equal", 27, 33))
sketch9.addConstraint(Sketcher.Constraint("Equal", 30, 36))
sketch9.addConstraint(Sketcher.Constraint("Equal", 35, 41))
sketch9.addConstraint(Sketcher.Constraint("Equal", 38, 44))
sketch9.addConstraint(Sketcher.Constraint("Equal", 59, 0))
sketch9.addConstraint(Sketcher.Constraint("Equal", 62, 5))
sketch9.addConstraint(Sketcher.Constraint("Equal", 10, 16))
sketch9.addConstraint(Sketcher.Constraint("Equal", 15, 21))
sketch9.addConstraint(Sketcher.Constraint("Equal", 26, 32))
sketch9.addConstraint(Sketcher.Constraint("Equal", 31, 37))
sketch9.addConstraint(Sketcher.Constraint("Equal", 42, 48))
sketch9.addConstraint(Sketcher.Constraint("Equal", 47, 53))
sketch9.addConstraint(Sketcher.Constraint("DistanceX", 4, 2, 4, 1, 5.7))
sketch9.addConstraint(Sketcher.Constraint("DistanceX", 4, 2, -1, 1, 37.1))
sketch9.addConstraint(Sketcher.Constraint("DistanceX", 12, 2, -1, 1, 58.6))
sketch9.addConstraint(Sketcher.Constraint("DistanceY", 4, 2, -1, 1, 22.15))
sketch9.addConstraint(Sketcher.Constraint("DistanceY", -1, 1, 20, 2, 15.85))
sketch9.addConstraint(Sketcher.Constraint("DistanceX", -1, 1, 36, 2, 33.15))
sketch9.addConstraint(Sketcher.Constraint("DistanceY", 36, 2, -1, 1, 34.15))
sketch9.addConstraint(Sketcher.Constraint("DistanceX", 44, 2, -1, 1, 23.85))
sketch9.addConstraint(Sketcher.Constraint("DistanceY", -1, 1, 52, 2, 36.85))
sketch9.addConstraint(Sketcher.Constraint("DistanceX", 1, 1, 1, 2, 9.129711))
sketch9.addConstraint(Sketcher.Constraint("DistanceX", 0, 2, -1, 1, 38.814855))
sketch9.addConstraint(Sketcher.Constraint("DistanceY", 0, 2, -1, 1, 20.435145))
sketch9.addConstraint(Sketcher.Constraint("DistanceX", 8, 2, -1, 1, 60.314855))
sketch9.addConstraint(Sketcher.Constraint("DistanceY", -1, 1, 16, 2, 17.564855))
sketch9.addConstraint(Sketcher.Constraint("DistanceX", -1, 1, 32, 2, 31.435145))
sketch9.addConstraint(Sketcher.Constraint("DistanceY", 32, 2, -1, 1, 32.435145))
sketch9.addConstraint(Sketcher.Constraint("DistanceX", 40, 2, -1, 1, 25.564855))
sketch9.addConstraint(Sketcher.Constraint("DistanceY", -1, 1, 48, 2, 38.564855))
pad6 = doc.addObject("PartDesign::Pad", "Pad005")
body.addObject(pad6)
pad6.Profile = sketch9
pad6.Length = 2
pad6.Reversed = True

sketch10 = doc.addObject("Sketcher::SketchObject", "Sketch009")
body.addObject(sketch10)
sketch10.AttachmentSupport = (doc.XZ_Plane, [""])
sketch10.MapMode = "FlatFace"
sketch10.AttachmentOffset = App.Placement(V(0, 0, -3), App.Rotation())
add_polygon(sketch10, [(57, 10.7), (57, 12.7), (72, 12.7), (72, 10.7)])
add_polygon(sketch10, [(57, -25.5), (57, -23.5), (72, -23.5), (72, -25.5)])
sketch10.addConstraint(Sketcher.Constraint("Vertical", 0))
sketch10.addConstraint(Sketcher.Constraint("Horizontal", 1))
sketch10.addConstraint(Sketcher.Constraint("Vertical", 2))
sketch10.addConstraint(Sketcher.Constraint("Horizontal", 3))
sketch10.addConstraint(Sketcher.Constraint("Vertical", 4))
sketch10.addConstraint(Sketcher.Constraint("Horizontal", 5))
sketch10.addConstraint(Sketcher.Constraint("Vertical", 6))
sketch10.addConstraint(Sketcher.Constraint("Horizontal", 7))
sketch10.addConstraint(Sketcher.Constraint("Vertical", 3, 2, 4, 2))
sketch10.addConstraint(Sketcher.Constraint("Vertical", 2, 2, 5, 2))
sketch10.addConstraint(Sketcher.Constraint("Equal", 2, 4))
sketch10.addConstraint(Sketcher.Constraint("DistanceX", 1, 1, 1, 2, 15.0))
sketch10.addConstraint(Sketcher.Constraint("DistanceY", 0, 1, 0, 2, 2.0))
sketch10.addConstraint(Sketcher.Constraint("DistanceX", -1, 1, 0, 2, 57.0))
sketch10.addConstraint(Sketcher.Constraint("DistanceY", -1, 1, 0, 2, 12.7))
sketch10.addConstraint(Sketcher.Constraint("DistanceY", 4, 2, -1, 1, 23.5))
pad7 = doc.addObject("PartDesign::Pad", "Pad006")
body.addObject(pad7)
pad7.Profile = sketch10
pad7.Length = 20
pad7.Reversed = True

doc.recompute()
